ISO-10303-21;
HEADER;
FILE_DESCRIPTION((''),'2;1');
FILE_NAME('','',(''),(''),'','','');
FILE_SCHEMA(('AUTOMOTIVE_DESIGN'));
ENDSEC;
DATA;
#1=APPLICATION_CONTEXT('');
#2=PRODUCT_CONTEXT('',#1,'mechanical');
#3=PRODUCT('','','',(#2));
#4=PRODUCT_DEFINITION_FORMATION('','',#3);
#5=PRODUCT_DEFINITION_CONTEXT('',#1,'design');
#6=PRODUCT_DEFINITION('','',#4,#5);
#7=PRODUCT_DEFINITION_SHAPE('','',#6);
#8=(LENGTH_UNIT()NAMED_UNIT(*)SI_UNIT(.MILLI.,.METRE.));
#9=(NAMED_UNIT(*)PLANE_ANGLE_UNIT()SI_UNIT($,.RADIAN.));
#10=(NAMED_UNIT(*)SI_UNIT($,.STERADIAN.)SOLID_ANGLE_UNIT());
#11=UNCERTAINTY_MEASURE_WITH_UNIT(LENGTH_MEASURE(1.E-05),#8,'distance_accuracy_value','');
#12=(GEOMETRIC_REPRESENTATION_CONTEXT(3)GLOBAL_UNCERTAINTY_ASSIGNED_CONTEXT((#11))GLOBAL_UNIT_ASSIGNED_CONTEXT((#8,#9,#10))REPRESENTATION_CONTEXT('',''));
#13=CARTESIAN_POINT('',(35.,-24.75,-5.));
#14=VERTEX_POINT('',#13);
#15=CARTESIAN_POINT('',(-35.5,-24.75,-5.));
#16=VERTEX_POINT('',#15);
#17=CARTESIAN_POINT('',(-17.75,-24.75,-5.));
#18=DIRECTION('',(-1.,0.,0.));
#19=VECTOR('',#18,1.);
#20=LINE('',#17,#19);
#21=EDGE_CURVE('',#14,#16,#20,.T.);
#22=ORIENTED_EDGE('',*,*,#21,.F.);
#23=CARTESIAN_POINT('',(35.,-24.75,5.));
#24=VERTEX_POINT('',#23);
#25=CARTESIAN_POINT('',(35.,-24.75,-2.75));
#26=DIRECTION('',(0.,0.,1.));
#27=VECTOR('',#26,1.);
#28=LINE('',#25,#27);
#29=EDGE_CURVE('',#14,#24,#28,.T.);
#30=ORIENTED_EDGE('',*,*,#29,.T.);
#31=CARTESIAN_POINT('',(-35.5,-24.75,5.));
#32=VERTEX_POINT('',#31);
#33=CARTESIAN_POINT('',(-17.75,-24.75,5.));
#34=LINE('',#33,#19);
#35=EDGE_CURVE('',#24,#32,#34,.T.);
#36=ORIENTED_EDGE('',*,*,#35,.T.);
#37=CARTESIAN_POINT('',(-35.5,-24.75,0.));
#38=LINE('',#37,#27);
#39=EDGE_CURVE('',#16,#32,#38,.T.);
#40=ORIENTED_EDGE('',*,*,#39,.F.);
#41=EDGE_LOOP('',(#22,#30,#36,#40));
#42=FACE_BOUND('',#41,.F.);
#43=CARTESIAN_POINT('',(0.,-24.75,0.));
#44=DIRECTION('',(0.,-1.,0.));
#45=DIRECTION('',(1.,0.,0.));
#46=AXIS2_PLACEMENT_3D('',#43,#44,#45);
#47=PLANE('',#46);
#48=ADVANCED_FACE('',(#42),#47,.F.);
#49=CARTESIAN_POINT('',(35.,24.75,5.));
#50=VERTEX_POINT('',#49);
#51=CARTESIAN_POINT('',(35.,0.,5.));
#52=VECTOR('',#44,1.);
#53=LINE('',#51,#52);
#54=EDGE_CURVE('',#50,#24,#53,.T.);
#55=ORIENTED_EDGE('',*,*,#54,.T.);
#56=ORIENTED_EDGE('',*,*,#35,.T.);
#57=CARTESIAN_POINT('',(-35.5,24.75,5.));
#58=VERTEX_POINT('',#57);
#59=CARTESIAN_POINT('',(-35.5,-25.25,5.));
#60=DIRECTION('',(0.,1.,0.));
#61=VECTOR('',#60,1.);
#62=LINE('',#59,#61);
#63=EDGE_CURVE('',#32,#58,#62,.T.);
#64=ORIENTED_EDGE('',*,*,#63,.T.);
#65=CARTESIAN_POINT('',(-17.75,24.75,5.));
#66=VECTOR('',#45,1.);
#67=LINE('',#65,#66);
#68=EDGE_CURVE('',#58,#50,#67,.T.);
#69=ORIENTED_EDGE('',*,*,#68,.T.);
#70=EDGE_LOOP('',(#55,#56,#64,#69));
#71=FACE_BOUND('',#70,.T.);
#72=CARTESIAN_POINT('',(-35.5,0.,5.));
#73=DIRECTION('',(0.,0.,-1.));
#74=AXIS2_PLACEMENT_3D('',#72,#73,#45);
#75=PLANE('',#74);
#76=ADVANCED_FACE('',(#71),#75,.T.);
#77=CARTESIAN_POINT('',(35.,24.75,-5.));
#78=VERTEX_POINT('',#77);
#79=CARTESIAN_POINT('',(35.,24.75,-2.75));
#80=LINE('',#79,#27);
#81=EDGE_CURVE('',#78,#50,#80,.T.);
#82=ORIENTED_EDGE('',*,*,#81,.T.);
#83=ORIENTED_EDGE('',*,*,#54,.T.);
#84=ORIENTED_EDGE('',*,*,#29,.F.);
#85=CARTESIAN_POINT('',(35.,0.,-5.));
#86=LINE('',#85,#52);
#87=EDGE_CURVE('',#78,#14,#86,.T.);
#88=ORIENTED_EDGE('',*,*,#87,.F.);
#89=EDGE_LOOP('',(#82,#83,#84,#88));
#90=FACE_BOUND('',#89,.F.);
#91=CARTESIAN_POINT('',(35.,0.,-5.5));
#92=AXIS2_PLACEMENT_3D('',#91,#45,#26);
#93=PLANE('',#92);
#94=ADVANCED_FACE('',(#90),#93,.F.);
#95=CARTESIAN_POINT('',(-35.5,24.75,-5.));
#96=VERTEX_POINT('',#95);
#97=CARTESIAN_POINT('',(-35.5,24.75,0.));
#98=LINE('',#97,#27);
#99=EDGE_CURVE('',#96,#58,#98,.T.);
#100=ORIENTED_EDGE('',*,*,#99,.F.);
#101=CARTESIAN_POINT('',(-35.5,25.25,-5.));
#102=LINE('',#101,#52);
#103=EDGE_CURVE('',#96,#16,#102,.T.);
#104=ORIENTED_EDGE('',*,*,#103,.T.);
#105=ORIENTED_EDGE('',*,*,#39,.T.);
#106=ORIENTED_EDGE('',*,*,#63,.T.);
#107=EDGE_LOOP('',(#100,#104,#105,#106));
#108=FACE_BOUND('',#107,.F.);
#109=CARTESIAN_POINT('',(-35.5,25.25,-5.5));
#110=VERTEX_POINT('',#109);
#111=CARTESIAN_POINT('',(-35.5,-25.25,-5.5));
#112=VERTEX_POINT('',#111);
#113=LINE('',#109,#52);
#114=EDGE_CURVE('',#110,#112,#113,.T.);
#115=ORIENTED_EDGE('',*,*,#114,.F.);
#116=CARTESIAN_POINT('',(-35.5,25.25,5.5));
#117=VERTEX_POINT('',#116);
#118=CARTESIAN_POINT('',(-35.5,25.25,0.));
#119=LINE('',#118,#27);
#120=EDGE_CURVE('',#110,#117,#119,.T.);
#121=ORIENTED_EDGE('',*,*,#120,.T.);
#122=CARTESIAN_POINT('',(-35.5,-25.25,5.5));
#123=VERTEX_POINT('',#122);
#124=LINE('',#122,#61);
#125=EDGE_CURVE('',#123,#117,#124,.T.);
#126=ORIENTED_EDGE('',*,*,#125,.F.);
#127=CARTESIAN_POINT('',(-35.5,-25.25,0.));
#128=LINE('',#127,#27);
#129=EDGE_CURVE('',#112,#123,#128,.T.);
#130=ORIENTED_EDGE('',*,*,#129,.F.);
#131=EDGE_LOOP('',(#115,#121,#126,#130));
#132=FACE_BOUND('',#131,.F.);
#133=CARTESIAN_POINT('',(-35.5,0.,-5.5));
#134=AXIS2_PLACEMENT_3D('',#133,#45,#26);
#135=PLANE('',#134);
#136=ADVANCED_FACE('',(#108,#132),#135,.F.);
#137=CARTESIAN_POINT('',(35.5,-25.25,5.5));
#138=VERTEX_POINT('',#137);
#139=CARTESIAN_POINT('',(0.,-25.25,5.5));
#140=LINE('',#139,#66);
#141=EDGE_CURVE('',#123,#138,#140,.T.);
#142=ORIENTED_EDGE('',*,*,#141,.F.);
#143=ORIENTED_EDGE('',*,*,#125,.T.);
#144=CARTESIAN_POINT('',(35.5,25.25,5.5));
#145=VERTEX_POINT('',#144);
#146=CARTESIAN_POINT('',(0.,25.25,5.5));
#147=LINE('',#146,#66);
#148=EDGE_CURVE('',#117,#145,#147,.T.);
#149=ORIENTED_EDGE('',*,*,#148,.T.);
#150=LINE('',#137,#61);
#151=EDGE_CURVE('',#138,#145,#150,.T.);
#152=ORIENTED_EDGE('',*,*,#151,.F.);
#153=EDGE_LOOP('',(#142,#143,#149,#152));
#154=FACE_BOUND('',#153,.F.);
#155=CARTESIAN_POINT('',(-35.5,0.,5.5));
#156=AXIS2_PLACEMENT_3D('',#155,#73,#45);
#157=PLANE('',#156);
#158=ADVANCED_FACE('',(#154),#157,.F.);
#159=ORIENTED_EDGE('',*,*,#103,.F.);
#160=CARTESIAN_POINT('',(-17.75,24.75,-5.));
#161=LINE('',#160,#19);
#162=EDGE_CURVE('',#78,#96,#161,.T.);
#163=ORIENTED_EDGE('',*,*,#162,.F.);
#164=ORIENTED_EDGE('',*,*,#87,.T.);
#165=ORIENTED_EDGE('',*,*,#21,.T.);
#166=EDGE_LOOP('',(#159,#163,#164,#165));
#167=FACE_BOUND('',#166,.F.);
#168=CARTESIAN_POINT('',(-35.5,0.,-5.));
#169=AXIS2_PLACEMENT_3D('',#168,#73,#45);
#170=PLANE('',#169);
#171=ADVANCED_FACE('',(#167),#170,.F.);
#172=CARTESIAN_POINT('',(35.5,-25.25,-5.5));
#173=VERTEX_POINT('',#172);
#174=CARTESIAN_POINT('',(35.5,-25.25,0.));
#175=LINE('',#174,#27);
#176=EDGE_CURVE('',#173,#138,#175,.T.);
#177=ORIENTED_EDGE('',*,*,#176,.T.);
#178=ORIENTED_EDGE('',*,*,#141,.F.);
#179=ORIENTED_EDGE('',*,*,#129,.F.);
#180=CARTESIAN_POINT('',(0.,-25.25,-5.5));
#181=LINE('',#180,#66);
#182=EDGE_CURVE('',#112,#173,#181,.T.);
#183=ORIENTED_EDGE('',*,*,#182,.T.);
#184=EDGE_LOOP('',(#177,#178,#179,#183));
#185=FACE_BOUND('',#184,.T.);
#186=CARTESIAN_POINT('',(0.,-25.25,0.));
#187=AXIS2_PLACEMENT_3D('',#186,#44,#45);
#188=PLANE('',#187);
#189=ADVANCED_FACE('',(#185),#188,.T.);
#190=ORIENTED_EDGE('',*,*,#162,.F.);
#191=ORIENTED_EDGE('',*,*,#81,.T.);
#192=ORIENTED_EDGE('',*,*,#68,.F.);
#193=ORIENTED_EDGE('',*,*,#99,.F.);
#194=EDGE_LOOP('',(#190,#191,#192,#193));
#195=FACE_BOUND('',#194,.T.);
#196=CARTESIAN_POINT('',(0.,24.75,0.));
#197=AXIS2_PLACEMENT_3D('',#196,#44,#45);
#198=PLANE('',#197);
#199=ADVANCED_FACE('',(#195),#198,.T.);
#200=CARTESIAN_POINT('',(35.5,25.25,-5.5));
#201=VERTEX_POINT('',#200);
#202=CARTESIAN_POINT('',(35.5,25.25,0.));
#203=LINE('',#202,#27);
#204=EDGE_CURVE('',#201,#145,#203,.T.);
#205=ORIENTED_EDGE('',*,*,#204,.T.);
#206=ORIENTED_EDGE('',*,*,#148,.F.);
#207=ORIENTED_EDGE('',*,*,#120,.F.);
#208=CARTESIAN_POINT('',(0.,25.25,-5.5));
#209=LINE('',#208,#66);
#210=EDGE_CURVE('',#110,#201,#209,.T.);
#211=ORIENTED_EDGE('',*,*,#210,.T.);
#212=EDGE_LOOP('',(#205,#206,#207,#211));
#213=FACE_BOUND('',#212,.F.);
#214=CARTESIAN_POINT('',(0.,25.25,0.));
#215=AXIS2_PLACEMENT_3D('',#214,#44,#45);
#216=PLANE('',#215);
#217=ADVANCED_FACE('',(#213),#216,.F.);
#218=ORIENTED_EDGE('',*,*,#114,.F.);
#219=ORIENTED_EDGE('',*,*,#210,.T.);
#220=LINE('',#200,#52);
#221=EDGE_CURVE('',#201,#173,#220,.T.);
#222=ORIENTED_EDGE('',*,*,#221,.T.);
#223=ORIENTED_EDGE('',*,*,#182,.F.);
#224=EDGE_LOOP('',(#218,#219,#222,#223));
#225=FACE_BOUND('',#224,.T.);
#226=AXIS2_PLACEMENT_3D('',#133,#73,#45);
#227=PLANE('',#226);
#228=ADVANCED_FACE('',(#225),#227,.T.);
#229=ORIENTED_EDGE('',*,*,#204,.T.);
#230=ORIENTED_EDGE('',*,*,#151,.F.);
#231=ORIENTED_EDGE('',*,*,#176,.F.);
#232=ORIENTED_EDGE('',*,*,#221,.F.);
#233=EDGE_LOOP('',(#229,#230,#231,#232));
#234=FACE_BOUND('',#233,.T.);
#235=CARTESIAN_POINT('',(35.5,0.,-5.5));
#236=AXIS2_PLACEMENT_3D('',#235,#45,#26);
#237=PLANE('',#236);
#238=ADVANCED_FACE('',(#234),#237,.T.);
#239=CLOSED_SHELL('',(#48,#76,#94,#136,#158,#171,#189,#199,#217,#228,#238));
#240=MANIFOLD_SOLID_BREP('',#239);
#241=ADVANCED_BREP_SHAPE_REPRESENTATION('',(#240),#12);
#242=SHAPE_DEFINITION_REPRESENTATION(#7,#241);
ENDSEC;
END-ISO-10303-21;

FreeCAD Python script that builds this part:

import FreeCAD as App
import Part
import Sketcher
from FreeCAD import Vector


def faces_at(feature, points):
    """Names of the faces that lie closest to the given points."""
    faces = feature.Shape.Faces
    near = lambda p: min(range(len(faces)), key=lambda i: faces[i].distToShape(Part.Vertex(*p))[0])
    return sorted({f"Face{near(p) + 1}" for p in points})

doc = App.newDocument("Part")
body = doc.addObject("PartDesign::Body", "Body")

# Sketch on XZ plane
sketch1 = body.newObject("Sketcher::SketchObject", "Sketch")
sketch1.AttachmentSupport = (doc.getObject("XZ_Plane"), [""])
sketch1.MapMode = "FlatFace"
sketch1.addGeometry([
    Part.LineSegment(Vector(-36, 6, 0), Vector(-36, -6, 0)),
    Part.LineSegment(Vector(-36, -6, 0), Vector(36, -6, 0)),
    Part.LineSegment(Vector(36, -6, 0), Vector(36, 6, 0)),
    Part.LineSegment(Vector(36, 6, 0), Vector(-36, 6, 0)),
], False)
sketch1.addConstraint([
    Sketcher.Constraint("Coincident", 0, 2, 1, 1),
    Sketcher.Constraint("Coincident", 1, 2, 2, 1),
    Sketcher.Constraint("Coincident", 2, 2, 3, 1),
    Sketcher.Constraint("Coincident", 3, 2, 0, 1),
    Sketcher.Constraint("Vertical", 0),
    Sketcher.Constraint("Horizontal", 1),
    Sketcher.Constraint("Vertical", 2),
    Sketcher.Constraint("Horizontal", 3),
    Sketcher.Constraint("Symmetric", 0, 2, 2, 2, -1, 1),
    Sketcher.Constraint("DistanceX", 1, 1, 1, 2, 71.0),
    Sketcher.Constraint("DistanceY", 0, 2, 0, 1, 11.0),
])
pad1 = body.newObject("PartDesign::Pad", "Pad")
pad1.Profile = sketch1
pad1.Length = 50.5
pad1.Midplane = True
doc.recompute()

thickness = body.newObject("PartDesign::Thickness", "Thickness")
thickness.Base = (pad1, faces_at(pad1, [(-35.5, 0, 0)]))
thickness.Value = 0.5
thickness.Reversed = True
thickness.Join = "Arc"

doc.recompute()
